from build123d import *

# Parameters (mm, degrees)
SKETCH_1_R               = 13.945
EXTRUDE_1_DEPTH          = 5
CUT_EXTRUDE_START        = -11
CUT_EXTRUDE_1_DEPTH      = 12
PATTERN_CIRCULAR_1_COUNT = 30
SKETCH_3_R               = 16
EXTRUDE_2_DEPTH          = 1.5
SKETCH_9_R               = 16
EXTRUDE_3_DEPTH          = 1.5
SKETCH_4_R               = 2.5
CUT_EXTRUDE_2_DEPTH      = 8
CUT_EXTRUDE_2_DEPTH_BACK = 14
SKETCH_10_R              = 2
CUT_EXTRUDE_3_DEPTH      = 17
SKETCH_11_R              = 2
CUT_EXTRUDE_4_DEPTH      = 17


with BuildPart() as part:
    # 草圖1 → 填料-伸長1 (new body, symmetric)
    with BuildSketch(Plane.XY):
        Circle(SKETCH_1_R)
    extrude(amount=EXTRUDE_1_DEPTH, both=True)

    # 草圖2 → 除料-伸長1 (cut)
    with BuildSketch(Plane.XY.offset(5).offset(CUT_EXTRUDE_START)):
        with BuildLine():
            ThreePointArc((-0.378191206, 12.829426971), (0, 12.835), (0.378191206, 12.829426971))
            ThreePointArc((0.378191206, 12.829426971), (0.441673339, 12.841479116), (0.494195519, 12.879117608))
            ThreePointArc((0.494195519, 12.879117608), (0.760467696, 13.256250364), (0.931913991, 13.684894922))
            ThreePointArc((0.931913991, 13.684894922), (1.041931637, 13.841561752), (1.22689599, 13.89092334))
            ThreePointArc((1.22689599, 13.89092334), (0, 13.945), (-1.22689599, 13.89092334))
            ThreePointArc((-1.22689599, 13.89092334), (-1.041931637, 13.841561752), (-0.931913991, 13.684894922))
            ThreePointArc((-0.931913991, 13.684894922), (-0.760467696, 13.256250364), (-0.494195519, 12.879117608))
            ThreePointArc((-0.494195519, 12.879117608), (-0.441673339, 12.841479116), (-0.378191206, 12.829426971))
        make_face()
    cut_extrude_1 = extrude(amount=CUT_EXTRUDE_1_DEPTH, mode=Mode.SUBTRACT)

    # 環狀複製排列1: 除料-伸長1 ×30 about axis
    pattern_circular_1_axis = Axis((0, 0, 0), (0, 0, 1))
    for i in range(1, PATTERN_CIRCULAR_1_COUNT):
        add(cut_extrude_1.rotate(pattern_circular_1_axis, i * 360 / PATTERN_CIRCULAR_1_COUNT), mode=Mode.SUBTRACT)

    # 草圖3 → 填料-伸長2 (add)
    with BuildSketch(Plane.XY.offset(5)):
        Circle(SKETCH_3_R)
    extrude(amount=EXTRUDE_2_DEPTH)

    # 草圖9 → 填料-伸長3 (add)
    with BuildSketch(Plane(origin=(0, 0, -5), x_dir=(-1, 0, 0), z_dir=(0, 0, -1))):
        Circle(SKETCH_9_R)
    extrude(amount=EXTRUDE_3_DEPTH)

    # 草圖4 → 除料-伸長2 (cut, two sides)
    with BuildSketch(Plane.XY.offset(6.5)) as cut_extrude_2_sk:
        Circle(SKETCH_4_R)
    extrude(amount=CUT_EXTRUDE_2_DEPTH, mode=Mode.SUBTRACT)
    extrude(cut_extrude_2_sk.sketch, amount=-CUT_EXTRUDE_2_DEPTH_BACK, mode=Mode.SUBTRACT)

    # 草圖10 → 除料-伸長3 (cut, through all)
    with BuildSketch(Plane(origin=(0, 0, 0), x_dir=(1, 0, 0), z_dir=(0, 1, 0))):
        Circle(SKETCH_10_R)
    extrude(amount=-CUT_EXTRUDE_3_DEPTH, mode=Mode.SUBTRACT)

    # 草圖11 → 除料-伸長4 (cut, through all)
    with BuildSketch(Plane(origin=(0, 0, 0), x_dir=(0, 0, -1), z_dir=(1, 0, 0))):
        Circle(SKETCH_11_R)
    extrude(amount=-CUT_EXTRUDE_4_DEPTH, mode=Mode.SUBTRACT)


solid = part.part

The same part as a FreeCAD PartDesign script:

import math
import FreeCAD as App
import Part
import Sketcher

doc = App.newDocument("Part")
body = doc.addObject("PartDesign::Body", "Body")

sketch1 = doc.addObject("Sketcher::SketchObject", "Sketch")
body.addObject(sketch1)
sketch1.AttachmentSupport = (doc.XY_Plane, [""])
sketch1.MapMode = "FlatFace"
sketch1.addGeometry(Part.Circle(App.Vector(0, 0, 0), App.Vector(0, 0, 1), 13.945), False)
sketch1.addConstraint([
    Sketcher.Constraint("Coincident", 0, 3, -1, 1),
    Sketcher.Constraint("Diameter", 0, 27.89),
])
pad1 = doc.addObject("PartDesign::Pad", "Pad")
body.addObject(pad1)
pad1.Profile = sketch1
pad1.Length = 10
pad1.Midplane = True

sketch2 = doc.addObject("Sketcher::SketchObject", "Sketch001")
body.addObject(sketch2)
sketch2.AttachmentSupport = (doc.XY_Plane, [""])
sketch2.MapMode = "FlatFace"
sketch2.AttachmentOffset = App.Placement(App.Vector(0, 0, -6), App.Rotation())
sketch2.addGeometry([
    Part.ArcOfCircle(Part.Circle(App.Vector(0, 0.000001, 0), App.Vector(0, 0, 1), 12.834999), math.radians(88.3115), math.radians(91.6885)),
    Part.ArcOfCircle(Part.Circle(App.Vector(0.382611, 12.979362, 0), App.Vector(0, 0, 1), 0.15), math.radians(-91.688498), math.radians(-41.935601)),
    Part.ArcOfCircle(Part.Circle(App.Vector(-0.975, 14.199, 0), App.Vector(0, 0, 1), 1.975), math.radians(-41.935599), math.radians(-15.088242)),
    Part.ArcOfCircle(Part.Circle(App.Vector(1.202261, 13.612009, 0), App.Vector(0, 0, 1), 0.28), math.radians(84.95253), math.radians(164.911758)),
    Part.ArcOfCircle(Part.Circle(App.Vector(0, 0, 0), App.Vector(0, 0, 1), 13.945), math.radians(84.95253), math.radians(95.04747)),
    Part.ArcOfCircle(Part.Circle(App.Vector(-1.202261, 13.612009, 0), App.Vector(0, 0, 1), 0.28), math.radians(15.088242), math.radians(95.04747)),
    Part.ArcOfCircle(Part.Circle(App.Vector(0.975, 14.199, 0), App.Vector(0, 0, 1), 1.975), math.radians(-164.911758), math.radians(-138.064401)),
    Part.ArcOfCircle(Part.Circle(App.Vector(-0.382611, 12.979362, 0), App.Vector(0, 0, 1), 0.15), math.radians(-138.064399), math.radians(-88.311502)),
], False)
sketch2.addConstraint([
    Sketcher.Constraint("Tangent", 0, 1, 1, 1),
    Sketcher.Constraint("Tangent", 1, 2, 2, 1),
    Sketcher.Constraint("Tangent", 2, 2, 3, 2),
    Sketcher.Constraint("Tangent", 3, 1, 4, 1),
    Sketcher.Constraint("Tangent", 4, 2, 5, 2),
    Sketcher.Constraint("Tangent", 5, 1, 6, 1),
    Sketcher.Constraint("Tangent", 6, 2, 7, 1),
    Sketcher.Constraint("Tangent", 7, 2, 0, 2),
    Sketcher.Constraint("Coincident", 0, 3, -1, 1),
    Sketcher.Constraint("Coincident", 4, 3, -1, 1),
    Sketcher.Constraint("Equal", 3, 5),
    Sketcher.Constraint("Equal", 2, 6),
    Sketcher.Constraint("Equal", 1, 7),
    Sketcher.Constraint("Symmetric", 2, 3, 6, 3, -2),
    Sketcher.Constraint("Radius", 1, 0.15),
    Sketcher.Constraint("Radius", 3, 0.28),
    Sketcher.Constraint("Radius", 0, 12.834999),
    Sketcher.Constraint("Radius", 2, 1.975),
    Sketcher.Constraint("Radius", 4, 13.945),
    Sketcher.Constraint("DistanceX", 2, 3, 6, 3, 1.95),
    Sketcher.Constraint("DistanceY", -1, 1, 2, 3, 14.199),
])
pocket1 = doc.addObject("PartDesign::Pocket", "Pocket")
body.addObject(pocket1)
pocket1.Profile = sketch2
pocket1.Length = 12
pocket1.Reversed = True
doc.recompute()

polarpattern = doc.addObject("PartDesign::PolarPattern", "PolarPattern")
body.addObject(polarpattern)
polarpattern.Originals = [pocket1]
polarpattern.Axis = (doc.Z_Axis, [""])
polarpattern.Angle = 360
polarpattern.Occurrences = 30
body.Tip = polarpattern

sketch3 = doc.addObject("Sketcher::SketchObject", "Sketch002")
body.addObject(sketch3)
sketch3.AttachmentSupport = (doc.XY_Plane, [""])
sketch3.MapMode = "FlatFace"
sketch3.AttachmentOffset = App.Placement(App.Vector(0, 0, 5), App.Rotation())
sketch3.addGeometry(Part.Circle(App.Vector(0, 0, 0), App.Vector(0, 0, 1), 16), False)
sketch3.addConstraint([
    Sketcher.Constraint("Coincident", 0, 3, -1, 1),
    Sketcher.Constraint("Diameter", 0, 32.0),
])
pad2 = doc.addObject("PartDesign::Pad", "Pad001")
body.addObject(pad2)
pad2.Profile = sketch3
pad2.Length = 1.5

sketch4 = doc.addObject("Sketcher::SketchObject", "Sketch003")
body.addObject(sketch4)
sketch4.AttachmentSupport = (doc.XY_Plane, [""])
sketch4.MapMode = "FlatFace"
sketch4.AttachmentOffset = App.Placement(App.Vector(0, 0, -5), App.Rotation())
sketch4.addGeometry(Part.Circle(App.Vector(0, 0, 0), App.Vector(0, 0, 1), 16), False)
sketch4.addConstraint([
    Sketcher.Constraint("Coincident", 0, 3, -1, 1),
    Sketcher.Constraint("Diameter", 0, 32.0),
])
pad3 = doc.addObject("PartDesign::Pad", "Pad002")
body.addObject(pad3)
pad3.Profile = sketch4
pad3.Length = 1.5
pad3.Reversed = True

sketch5 = doc.addObject("Sketcher::SketchObject", "Sketch004")
body.addObject(sketch5)
sketch5.AttachmentSupport = (doc.XY_Plane, [""])
sketch5.MapMode = "FlatFace"
sketch5.AttachmentOffset = App.Placement(App.Vector(0, 0, 6.5), App.Rotation())
sketch5.addGeometry(Part.Circle(App.Vector(0, 0, 0), App.Vector(0, 0, 1), 2.5), False)
sketch5.addConstraint([
    Sketcher.Constraint("Coincident", 0, 3, -1, 1),
    Sketcher.Constraint("Diameter", 0, 5.0),
])
pocket2 = doc.addObject("PartDesign::Pocket", "Pocket001")
body.addObject(pocket2)
pocket2.Profile = sketch5
pocket2.Type = "ThroughAll"
pocket2.Midplane = True

sketch6 = doc.addObject("Sketcher::SketchObject", "Sketch005")
body.addObject(sketch6)
sketch6.AttachmentSupport = (doc.XZ_Plane, [""])
sketch6.MapMode = "FlatFace"
sketch6.addGeometry(Part.Circle(App.Vector(0, 0, 0), App.Vector(0, 0, 1), 2), False)
sketch6.addConstraint([
    Sketcher.Constraint("Coincident", 0, 3, -1, 1),
    Sketcher.Constraint("Diameter", 0, 4.0),
])
pocket3 = doc.addObject("PartDesign::Pocket", "Pocket002")
body.addObject(pocket3)
pocket3.Profile = sketch6
pocket3.Type = "ThroughAll"
pocket3.Reversed = True

sketch7 = doc.addObject("Sketcher::SketchObject", "Sketch006")
body.addObject(sketch7)
sketch7.AttachmentSupport = (doc.YZ_Plane, [""])
sketch7.MapMode = "FlatFace"
sketch7.addGeometry(Part.Circle(App.Vector(0, 0, 0), App.Vector(0, 0, 1), 2), False)
sketch7.addConstraint([
    Sketcher.Constraint("Coincident", 0, 3, -1, 1),
    Sketcher.Constraint("Diameter", 0, 4.0),
])
pocket4 = doc.addObject("PartDesign::Pocket", "Pocket003")
body.addObject(pocket4)
pocket4.Profile = sketch7
pocket4.Type = "ThroughAll"

doc.recompute()
